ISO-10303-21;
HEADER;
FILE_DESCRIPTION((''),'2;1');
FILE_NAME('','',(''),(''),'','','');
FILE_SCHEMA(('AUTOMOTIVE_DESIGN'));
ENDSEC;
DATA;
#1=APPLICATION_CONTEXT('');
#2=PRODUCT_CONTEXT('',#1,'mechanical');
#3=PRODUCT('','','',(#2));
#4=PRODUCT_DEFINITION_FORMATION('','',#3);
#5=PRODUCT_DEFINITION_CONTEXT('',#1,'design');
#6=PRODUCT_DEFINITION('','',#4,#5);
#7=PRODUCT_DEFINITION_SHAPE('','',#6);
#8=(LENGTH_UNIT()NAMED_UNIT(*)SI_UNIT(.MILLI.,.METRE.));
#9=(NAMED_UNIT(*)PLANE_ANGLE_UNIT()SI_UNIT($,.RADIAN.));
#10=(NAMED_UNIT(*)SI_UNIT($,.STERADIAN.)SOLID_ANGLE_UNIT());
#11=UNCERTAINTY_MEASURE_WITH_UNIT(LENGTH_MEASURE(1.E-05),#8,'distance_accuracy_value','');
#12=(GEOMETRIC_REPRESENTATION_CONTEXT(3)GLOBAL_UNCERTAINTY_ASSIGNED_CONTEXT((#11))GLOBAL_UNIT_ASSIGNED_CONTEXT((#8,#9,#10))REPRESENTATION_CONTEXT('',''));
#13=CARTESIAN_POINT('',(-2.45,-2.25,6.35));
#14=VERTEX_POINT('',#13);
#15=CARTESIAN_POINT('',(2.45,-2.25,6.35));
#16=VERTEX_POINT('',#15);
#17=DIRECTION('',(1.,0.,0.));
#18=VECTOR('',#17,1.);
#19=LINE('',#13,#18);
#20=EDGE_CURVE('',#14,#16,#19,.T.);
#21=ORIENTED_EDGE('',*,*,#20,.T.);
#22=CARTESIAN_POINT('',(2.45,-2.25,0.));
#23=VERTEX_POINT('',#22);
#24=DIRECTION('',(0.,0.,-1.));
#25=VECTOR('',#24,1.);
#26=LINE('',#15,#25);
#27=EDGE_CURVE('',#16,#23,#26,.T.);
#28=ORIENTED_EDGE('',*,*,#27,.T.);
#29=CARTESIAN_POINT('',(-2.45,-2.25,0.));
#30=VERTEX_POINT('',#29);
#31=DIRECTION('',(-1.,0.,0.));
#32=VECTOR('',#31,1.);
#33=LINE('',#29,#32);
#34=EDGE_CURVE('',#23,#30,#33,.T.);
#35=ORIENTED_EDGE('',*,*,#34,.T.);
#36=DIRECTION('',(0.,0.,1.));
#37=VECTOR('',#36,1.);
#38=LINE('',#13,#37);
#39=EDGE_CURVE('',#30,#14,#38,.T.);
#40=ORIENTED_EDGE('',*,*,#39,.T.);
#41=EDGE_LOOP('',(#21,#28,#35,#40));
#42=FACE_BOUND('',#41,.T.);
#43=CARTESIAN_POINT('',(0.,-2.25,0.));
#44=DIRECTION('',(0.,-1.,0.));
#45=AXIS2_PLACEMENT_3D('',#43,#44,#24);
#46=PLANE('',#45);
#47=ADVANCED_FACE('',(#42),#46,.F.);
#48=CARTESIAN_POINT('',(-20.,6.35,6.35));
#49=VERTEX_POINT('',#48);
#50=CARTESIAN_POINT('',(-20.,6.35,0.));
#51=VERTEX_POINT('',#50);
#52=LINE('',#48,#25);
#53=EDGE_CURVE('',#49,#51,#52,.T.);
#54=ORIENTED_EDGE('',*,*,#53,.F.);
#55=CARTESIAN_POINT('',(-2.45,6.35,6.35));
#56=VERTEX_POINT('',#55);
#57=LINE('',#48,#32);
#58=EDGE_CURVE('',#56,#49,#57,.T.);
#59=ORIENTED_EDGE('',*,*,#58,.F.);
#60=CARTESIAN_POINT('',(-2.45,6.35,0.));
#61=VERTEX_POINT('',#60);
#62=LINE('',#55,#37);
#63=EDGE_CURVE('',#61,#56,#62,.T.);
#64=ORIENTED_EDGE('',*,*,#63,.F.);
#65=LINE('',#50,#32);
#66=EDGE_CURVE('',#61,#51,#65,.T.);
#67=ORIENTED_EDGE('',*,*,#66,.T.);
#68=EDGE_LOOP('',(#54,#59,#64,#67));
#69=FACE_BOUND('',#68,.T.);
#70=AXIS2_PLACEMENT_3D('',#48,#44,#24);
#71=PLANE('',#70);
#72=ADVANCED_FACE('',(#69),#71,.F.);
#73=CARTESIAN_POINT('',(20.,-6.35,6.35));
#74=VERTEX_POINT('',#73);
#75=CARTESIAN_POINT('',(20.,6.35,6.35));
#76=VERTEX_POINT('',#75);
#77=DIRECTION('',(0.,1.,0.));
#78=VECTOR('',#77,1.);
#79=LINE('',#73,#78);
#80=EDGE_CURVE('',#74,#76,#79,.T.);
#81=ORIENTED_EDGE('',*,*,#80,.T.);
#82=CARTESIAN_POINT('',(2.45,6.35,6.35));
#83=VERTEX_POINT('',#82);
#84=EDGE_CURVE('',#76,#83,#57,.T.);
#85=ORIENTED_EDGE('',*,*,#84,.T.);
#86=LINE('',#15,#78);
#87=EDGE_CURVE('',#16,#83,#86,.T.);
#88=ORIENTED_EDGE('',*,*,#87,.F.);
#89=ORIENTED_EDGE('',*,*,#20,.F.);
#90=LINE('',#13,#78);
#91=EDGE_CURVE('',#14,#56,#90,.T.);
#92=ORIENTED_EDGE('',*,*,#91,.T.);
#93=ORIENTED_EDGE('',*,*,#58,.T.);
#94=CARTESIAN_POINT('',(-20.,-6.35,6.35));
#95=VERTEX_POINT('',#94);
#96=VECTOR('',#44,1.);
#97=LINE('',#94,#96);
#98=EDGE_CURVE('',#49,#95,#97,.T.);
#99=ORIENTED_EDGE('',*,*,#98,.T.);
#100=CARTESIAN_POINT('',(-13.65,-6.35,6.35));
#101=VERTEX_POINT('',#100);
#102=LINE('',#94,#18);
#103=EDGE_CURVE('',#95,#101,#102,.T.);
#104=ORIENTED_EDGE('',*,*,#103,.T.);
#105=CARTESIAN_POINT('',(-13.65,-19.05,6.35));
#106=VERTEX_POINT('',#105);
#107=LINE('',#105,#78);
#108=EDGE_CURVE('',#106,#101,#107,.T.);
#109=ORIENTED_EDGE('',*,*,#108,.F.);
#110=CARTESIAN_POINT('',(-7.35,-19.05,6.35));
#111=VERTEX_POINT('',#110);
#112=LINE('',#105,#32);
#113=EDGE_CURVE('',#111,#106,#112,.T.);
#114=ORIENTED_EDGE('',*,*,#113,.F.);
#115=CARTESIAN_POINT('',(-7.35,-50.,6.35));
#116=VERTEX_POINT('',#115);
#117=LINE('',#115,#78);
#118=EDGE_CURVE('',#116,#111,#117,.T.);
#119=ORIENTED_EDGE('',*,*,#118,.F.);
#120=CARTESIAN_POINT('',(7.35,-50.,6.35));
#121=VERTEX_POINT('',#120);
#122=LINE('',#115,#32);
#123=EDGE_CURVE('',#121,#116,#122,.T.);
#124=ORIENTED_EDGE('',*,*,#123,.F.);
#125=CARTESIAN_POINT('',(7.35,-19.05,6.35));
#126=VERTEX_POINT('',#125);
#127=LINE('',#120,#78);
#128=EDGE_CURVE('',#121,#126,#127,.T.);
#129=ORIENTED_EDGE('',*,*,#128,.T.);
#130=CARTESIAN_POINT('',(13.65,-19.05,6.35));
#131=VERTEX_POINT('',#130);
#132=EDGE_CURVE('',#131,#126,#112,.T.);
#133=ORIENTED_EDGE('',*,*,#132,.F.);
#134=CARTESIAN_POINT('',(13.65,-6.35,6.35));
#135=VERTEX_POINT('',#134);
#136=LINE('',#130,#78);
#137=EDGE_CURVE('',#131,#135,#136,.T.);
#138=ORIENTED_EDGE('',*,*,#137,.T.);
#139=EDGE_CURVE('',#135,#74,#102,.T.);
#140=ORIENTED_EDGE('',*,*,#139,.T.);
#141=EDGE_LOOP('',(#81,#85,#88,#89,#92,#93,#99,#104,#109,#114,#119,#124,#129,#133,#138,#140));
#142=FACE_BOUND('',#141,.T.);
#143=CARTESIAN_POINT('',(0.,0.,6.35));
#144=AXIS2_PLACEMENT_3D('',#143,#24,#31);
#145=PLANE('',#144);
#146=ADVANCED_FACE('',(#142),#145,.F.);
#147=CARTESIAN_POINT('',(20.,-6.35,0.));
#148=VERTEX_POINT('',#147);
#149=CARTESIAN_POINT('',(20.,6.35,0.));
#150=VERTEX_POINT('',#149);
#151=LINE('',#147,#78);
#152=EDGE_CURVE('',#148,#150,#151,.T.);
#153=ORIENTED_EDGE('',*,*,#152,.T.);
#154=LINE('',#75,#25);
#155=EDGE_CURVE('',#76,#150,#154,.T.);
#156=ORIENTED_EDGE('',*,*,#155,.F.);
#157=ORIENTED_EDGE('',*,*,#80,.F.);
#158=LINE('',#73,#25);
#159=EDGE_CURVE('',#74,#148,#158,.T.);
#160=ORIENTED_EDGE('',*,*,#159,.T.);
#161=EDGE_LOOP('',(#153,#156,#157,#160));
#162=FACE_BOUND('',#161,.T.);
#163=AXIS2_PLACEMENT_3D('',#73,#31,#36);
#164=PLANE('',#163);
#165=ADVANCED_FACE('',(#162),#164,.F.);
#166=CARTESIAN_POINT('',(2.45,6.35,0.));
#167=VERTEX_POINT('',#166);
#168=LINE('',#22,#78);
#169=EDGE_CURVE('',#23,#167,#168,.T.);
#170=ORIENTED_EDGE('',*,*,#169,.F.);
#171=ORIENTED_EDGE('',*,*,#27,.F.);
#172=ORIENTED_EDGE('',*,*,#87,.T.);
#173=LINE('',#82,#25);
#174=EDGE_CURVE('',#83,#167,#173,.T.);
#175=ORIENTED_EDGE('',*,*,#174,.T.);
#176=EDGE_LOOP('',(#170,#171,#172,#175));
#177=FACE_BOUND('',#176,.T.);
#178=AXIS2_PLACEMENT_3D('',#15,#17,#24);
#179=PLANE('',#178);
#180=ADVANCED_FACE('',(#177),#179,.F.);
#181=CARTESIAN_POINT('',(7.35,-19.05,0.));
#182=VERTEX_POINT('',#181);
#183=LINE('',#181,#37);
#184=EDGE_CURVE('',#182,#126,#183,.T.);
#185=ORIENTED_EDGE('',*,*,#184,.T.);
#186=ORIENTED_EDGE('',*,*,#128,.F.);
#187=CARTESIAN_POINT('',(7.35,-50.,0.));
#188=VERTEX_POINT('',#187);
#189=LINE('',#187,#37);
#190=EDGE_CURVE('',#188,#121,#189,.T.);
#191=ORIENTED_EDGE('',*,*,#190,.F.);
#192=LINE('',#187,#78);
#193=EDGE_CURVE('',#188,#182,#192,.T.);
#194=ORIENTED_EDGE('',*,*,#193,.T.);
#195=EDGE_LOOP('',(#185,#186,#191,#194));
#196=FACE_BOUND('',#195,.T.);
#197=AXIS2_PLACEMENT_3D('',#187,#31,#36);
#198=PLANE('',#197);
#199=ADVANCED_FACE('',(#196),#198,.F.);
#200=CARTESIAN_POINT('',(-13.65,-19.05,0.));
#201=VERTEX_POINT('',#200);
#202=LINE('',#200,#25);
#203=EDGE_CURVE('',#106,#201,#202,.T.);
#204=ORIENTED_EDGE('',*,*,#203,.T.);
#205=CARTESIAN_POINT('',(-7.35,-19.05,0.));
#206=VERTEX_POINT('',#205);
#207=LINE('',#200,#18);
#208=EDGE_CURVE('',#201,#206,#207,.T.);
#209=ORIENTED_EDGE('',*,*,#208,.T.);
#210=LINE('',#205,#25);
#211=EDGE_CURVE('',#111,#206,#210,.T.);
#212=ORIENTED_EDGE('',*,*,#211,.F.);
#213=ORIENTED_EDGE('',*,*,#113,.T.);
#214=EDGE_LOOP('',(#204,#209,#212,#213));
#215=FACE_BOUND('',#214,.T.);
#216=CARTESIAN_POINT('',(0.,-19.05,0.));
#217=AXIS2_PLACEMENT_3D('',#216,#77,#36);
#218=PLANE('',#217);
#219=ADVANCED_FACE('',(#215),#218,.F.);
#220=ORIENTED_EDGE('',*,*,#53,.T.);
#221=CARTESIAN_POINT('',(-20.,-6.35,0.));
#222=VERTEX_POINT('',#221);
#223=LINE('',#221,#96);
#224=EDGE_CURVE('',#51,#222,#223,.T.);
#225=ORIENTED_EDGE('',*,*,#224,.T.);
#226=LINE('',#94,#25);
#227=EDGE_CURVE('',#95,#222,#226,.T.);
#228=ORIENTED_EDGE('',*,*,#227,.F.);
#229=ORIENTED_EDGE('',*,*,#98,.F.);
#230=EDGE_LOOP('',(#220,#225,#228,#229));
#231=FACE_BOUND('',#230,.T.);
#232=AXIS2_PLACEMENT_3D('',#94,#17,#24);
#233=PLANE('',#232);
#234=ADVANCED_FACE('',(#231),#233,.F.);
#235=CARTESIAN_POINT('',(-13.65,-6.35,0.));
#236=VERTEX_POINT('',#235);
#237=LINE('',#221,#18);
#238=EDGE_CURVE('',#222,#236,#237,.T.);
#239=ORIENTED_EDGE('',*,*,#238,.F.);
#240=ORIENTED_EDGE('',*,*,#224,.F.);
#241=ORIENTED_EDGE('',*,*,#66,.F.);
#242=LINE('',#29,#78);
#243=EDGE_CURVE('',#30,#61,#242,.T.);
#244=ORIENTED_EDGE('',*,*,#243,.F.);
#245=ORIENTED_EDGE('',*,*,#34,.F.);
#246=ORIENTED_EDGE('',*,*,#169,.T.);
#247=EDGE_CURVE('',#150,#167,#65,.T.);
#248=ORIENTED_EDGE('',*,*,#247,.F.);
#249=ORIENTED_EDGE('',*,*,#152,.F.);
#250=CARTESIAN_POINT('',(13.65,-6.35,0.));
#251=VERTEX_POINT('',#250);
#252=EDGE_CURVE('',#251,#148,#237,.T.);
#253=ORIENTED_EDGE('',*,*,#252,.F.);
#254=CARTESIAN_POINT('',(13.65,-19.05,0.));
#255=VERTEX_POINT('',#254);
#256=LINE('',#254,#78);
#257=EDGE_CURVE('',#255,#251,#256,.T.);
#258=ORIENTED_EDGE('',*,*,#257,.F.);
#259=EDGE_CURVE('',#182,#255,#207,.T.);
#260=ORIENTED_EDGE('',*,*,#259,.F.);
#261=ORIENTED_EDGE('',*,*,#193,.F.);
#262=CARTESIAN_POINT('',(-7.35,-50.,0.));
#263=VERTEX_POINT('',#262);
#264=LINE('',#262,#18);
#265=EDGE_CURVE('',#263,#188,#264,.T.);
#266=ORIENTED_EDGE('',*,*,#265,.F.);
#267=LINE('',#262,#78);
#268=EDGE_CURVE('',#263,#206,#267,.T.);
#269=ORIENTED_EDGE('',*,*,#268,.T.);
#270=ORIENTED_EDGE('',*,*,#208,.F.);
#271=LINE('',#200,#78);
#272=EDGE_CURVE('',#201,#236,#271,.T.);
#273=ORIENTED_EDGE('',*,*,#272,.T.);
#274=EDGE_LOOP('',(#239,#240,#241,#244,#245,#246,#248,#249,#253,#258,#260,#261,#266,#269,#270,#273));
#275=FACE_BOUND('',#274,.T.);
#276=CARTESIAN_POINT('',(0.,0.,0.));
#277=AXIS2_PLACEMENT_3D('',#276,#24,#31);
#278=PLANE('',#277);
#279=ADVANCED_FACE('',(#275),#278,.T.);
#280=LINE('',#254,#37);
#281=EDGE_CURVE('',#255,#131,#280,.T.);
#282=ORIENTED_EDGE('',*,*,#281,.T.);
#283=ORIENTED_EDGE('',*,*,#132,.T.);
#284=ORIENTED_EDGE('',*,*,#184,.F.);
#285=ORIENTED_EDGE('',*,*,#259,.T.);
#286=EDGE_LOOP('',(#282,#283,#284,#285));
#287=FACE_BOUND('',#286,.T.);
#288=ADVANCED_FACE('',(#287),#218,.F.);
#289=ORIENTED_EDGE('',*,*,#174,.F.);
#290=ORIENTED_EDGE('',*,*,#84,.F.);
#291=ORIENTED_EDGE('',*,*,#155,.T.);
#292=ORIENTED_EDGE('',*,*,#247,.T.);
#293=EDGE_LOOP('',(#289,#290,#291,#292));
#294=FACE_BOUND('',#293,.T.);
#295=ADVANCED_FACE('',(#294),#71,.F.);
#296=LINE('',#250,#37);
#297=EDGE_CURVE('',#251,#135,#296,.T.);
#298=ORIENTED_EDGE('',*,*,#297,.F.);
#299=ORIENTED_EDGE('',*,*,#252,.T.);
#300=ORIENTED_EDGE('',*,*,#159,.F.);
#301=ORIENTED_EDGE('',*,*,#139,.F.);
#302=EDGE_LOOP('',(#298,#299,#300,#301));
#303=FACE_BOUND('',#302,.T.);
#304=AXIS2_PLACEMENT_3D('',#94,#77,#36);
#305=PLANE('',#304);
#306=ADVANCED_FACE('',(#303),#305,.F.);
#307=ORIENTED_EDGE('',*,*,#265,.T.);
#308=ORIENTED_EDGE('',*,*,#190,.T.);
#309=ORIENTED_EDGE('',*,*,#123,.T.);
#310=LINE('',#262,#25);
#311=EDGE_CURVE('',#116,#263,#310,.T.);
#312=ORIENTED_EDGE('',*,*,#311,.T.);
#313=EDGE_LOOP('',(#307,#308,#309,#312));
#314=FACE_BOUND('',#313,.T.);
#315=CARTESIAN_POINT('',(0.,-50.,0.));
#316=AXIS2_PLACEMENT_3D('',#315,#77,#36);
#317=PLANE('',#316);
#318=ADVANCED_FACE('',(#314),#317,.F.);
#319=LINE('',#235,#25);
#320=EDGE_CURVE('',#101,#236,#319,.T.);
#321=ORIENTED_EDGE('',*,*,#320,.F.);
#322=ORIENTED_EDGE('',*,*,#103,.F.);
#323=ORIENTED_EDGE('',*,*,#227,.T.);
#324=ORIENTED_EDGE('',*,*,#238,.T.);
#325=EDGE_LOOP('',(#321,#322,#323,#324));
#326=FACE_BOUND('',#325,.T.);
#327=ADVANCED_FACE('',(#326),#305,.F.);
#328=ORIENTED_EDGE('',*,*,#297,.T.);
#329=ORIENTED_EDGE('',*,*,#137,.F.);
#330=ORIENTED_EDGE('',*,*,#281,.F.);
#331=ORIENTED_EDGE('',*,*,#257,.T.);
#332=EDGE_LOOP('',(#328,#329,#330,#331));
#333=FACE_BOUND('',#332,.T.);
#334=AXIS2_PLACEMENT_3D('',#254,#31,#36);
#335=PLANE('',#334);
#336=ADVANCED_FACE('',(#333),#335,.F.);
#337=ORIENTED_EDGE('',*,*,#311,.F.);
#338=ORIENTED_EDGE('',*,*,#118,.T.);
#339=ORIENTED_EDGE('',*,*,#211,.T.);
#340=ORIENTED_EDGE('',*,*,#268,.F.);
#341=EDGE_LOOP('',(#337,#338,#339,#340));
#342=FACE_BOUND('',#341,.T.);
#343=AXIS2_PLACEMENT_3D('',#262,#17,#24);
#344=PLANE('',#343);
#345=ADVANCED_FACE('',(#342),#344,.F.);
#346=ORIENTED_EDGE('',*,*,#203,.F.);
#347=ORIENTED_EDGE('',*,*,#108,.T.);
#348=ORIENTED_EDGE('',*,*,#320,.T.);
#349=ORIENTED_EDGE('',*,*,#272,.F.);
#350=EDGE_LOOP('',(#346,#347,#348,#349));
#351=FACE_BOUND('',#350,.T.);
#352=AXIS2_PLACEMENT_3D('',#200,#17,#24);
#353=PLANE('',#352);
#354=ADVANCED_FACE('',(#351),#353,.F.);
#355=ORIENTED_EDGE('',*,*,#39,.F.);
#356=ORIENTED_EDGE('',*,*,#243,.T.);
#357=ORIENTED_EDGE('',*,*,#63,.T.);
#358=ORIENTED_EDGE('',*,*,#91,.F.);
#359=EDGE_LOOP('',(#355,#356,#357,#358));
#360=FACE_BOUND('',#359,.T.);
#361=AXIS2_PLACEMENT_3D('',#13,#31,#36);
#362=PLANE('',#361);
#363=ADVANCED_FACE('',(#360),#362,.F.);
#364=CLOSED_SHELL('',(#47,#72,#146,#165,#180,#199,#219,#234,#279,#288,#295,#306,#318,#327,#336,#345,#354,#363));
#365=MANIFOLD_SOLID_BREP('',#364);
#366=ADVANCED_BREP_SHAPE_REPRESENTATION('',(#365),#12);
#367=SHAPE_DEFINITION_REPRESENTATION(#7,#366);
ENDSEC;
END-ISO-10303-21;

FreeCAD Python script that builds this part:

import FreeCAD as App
import Part
import Sketcher
from FreeCAD import Vector

doc = App.newDocument("Part")
body = doc.addObject("PartDesign::Body", "Body")

# Sketch on XY plane
sketch1 = body.newObject("Sketcher::SketchObject", "Sketch")
sketch1.AttachmentSupport = (doc.getObject("XY_Plane"), [""])
sketch1.MapMode = "FlatFace"
sketch1.addGeometry(Part.LineSegment(Vector(-20, 6, 0), Vector(-20, -6, 0)), False)
sketch1.addGeometry(Part.LineSegment(Vector(-20, -6, 0), Vector(20, -6, 0)), False)
sketch1.addGeometry(Part.LineSegment(Vector(20, -6, 0), Vector(20, 6, 0)), False)
sketch1.addGeometry(Part.LineSegment(Vector(20, 6, 0), Vector(-20, 6, 0)), False)
sketch1.addConstraint(Sketcher.Constraint("Coincident", 0, 2, 1, 1))
sketch1.addConstraint(Sketcher.Constraint("Coincident", 1, 2, 2, 1))
sketch1.addConstraint(Sketcher.Constraint("Coincident", 2, 2, 3, 1))
sketch1.addConstraint(Sketcher.Constraint("Coincident", 3, 2, 0, 1))
sketch1.addConstraint(Sketcher.Constraint("Vertical", 0))
sketch1.addConstraint(Sketcher.Constraint("Horizontal", 1))
sketch1.addConstraint(Sketcher.Constraint("Vertical", 2))
sketch1.addConstraint(Sketcher.Constraint("Horizontal", 3))
sketch1.addConstraint(Sketcher.Constraint("Symmetric", 0, 2, 2, 2, -1, 1))
sketch1.addConstraint(Sketcher.Constraint("DistanceX", 1, 1, 1, 2, 40.0))
sketch1.addConstraint(Sketcher.Constraint("DistanceY", 0, 2, 0, 1, 12.7))
pad1 = body.newObject("PartDesign::Pad", "Pad")
pad1.Profile = sketch1
pad1.Length = 6.35

# Sketch on XZ plane
sketch2 = body.newObject("Sketcher::SketchObject", "Sketch001")
sketch2.AttachmentSupport = (doc.getObject("XZ_Plane"), [""])
sketch2.MapMode = "FlatFace"
sketch2.AttachmentOffset = App.Placement(Vector(0, 0, 6.35), App.Rotation())
sketch2.addGeometry(Part.LineSegment(Vector(-14, 6, 0), Vector(-14, 0, 0)), False)
sketch2.addGeometry(Part.LineSegment(Vector(-14, 0, 0), Vector(14, 0, 0)), False)
sketch2.addGeometry(Part.LineSegment(Vector(14, 0, 0), Vector(14, 6, 0)), False)
sketch2.addGeometry(Part.LineSegment(Vector(14, 6, 0), Vector(-14, 6, 0)), False)
sketch2.addConstraint(Sketcher.Constraint("Coincident", 0, 2, 1, 1))
sketch2.addConstraint(Sketcher.Constraint("Coincident", 1, 2, 2, 1))
sketch2.addConstraint(Sketcher.Constraint("Coincident", 2, 2, 3, 1))
sketch2.addConstraint(Sketcher.Constraint("Coincident", 3, 2, 0, 1))
sketch2.addConstraint(Sketcher.Constraint("Vertical", 0))
sketch2.addConstraint(Sketcher.Constraint("Horizontal", 1))
sketch2.addConstraint(Sketcher.Constraint("Vertical", 2))
sketch2.addConstraint(Sketcher.Constraint("Horizontal", 3))
sketch2.addConstraint(Sketcher.Constraint("Symmetric", 0, 2, 1, 2, -1, 1))
sketch2.addConstraint(Sketcher.Constraint("DistanceX", 1, 1, 1, 2, 27.3))
sketch2.addConstraint(Sketcher.Constraint("DistanceY", 0, 2, 0, 1, 6.35))
pad2 = body.newObject("PartDesign::Pad", "Pad001")
pad2.Profile = sketch2
pad2.Length = 12.7

# Sketch on XZ plane
sketch3 = body.newObject("Sketcher::SketchObject", "Sketch002")
sketch3.AttachmentSupport = (doc.getObject("XZ_Plane"), [""])
sketch3.MapMode = "FlatFace"
sketch3.AttachmentOffset = App.Placement(Vector(0, 0, -6.35), App.Rotation())
sketch3.addGeometry(Part.LineSegment(Vector(-2.5, 0, 0), Vector(-2.5, 6.3, 0)), False)
sketch3.addGeometry(Part.LineSegment(Vector(-2.5, 6.3, 0), Vector(2.5, 6.3, 0)), False)
sketch3.addGeometry(Part.LineSegment(Vector(2.5, 6.3, 0), Vector(2.5, 0, 0)), False)
sketch3.addGeometry(Part.LineSegment(Vector(2.5, 0, 0), Vector(-2.5, 0, 0)), False)
sketch3.addConstraint(Sketcher.Constraint("Coincident", 0, 2, 1, 1))
sketch3.addConstraint(Sketcher.Constraint("Coincident", 1, 2, 2, 1))
sketch3.addConstraint(Sketcher.Constraint("Coincident", 2, 2, 3, 1))
sketch3.addConstraint(Sketcher.Constraint("Coincident", 3, 2, 0, 1))
sketch3.addConstraint(Sketcher.Constraint("Vertical", 0))
sketch3.addConstraint(Sketcher.Constraint("Horizontal", 1))
sketch3.addConstraint(Sketcher.Constraint("Vertical", 2))
sketch3.addConstraint(Sketcher.Constraint("Horizontal", 3))
sketch3.addConstraint(Sketcher.Constraint("Symmetric", 2, 2, 3, 2, -1, 1))
sketch3.addConstraint(Sketcher.Constraint("DistanceX", 1, 1, 1, 2, 4.9))
sketch3.addConstraint(Sketcher.Constraint("DistanceY", 0, 1, 0, 2, 6.35))
pocket1 = body.newObject("PartDesign::Pocket", "Pocket")
pocket1.Profile = sketch3
pocket1.Length = 8.6
pocket1.Reversed = True

# Sketch on XZ plane
sketch4 = body.newObject("Sketcher::SketchObject", "Sketch003")
sketch4.AttachmentSupport = (doc.getObject("XZ_Plane"), [""])
sketch4.MapMode = "FlatFace"
sketch4.AttachmentOffset = App.Placement(Vector(0, 0, 19.05), App.Rotation())
sketch4.addGeometry(Part.LineSegment(Vector(-7, 6, 0), Vector(-7, 0, 0)), False)
sketch4.addGeometry(Part.LineSegment(Vector(-7, 0, 0), Vector(7, 0, 0)), False)
sketch4.addGeometry(Part.LineSegment(Vector(7, 0, 0), Vector(7, 6, 0)), False)
sketch4.addGeometry(Part.LineSegment(Vector(7, 6, 0), Vector(-7, 6, 0)), False)
sketch4.addConstraint(Sketcher.Constraint("Coincident", 0, 2, 1, 1))
sketch4.addConstraint(Sketcher.Constraint("Coincident", 1, 2, 2, 1))
sketch4.addConstraint(Sketcher.Constraint("Coincident", 2, 2, 3, 1))
sketch4.addConstraint(Sketcher.Constraint("Coincident", 3, 2, 0, 1))
sketch4.addConstraint(Sketcher.Constraint("Vertical", 0))
sketch4.addConstraint(Sketcher.Constraint("Horizontal", 1))
sketch4.addConstraint(Sketcher.Constraint("Vertical", 2))
sketch4.addConstraint(Sketcher.Constraint("Horizontal", 3))
sketch4.addConstraint(Sketcher.Constraint("Symmetric", 0, 2, 1, 2, -1, 1))
sketch4.addConstraint(Sketcher.Constraint("DistanceX", 1, 1, 1, 2, 14.7))
sketch4.addConstraint(Sketcher.Constraint("DistanceY", 0, 2, 0, 1, 6.35))
pad3 = body.newObject("PartDesign::Pad", "Pad002")
pad3.Profile = sketch4
pad3.Length = 30.95

doc.recompute()
